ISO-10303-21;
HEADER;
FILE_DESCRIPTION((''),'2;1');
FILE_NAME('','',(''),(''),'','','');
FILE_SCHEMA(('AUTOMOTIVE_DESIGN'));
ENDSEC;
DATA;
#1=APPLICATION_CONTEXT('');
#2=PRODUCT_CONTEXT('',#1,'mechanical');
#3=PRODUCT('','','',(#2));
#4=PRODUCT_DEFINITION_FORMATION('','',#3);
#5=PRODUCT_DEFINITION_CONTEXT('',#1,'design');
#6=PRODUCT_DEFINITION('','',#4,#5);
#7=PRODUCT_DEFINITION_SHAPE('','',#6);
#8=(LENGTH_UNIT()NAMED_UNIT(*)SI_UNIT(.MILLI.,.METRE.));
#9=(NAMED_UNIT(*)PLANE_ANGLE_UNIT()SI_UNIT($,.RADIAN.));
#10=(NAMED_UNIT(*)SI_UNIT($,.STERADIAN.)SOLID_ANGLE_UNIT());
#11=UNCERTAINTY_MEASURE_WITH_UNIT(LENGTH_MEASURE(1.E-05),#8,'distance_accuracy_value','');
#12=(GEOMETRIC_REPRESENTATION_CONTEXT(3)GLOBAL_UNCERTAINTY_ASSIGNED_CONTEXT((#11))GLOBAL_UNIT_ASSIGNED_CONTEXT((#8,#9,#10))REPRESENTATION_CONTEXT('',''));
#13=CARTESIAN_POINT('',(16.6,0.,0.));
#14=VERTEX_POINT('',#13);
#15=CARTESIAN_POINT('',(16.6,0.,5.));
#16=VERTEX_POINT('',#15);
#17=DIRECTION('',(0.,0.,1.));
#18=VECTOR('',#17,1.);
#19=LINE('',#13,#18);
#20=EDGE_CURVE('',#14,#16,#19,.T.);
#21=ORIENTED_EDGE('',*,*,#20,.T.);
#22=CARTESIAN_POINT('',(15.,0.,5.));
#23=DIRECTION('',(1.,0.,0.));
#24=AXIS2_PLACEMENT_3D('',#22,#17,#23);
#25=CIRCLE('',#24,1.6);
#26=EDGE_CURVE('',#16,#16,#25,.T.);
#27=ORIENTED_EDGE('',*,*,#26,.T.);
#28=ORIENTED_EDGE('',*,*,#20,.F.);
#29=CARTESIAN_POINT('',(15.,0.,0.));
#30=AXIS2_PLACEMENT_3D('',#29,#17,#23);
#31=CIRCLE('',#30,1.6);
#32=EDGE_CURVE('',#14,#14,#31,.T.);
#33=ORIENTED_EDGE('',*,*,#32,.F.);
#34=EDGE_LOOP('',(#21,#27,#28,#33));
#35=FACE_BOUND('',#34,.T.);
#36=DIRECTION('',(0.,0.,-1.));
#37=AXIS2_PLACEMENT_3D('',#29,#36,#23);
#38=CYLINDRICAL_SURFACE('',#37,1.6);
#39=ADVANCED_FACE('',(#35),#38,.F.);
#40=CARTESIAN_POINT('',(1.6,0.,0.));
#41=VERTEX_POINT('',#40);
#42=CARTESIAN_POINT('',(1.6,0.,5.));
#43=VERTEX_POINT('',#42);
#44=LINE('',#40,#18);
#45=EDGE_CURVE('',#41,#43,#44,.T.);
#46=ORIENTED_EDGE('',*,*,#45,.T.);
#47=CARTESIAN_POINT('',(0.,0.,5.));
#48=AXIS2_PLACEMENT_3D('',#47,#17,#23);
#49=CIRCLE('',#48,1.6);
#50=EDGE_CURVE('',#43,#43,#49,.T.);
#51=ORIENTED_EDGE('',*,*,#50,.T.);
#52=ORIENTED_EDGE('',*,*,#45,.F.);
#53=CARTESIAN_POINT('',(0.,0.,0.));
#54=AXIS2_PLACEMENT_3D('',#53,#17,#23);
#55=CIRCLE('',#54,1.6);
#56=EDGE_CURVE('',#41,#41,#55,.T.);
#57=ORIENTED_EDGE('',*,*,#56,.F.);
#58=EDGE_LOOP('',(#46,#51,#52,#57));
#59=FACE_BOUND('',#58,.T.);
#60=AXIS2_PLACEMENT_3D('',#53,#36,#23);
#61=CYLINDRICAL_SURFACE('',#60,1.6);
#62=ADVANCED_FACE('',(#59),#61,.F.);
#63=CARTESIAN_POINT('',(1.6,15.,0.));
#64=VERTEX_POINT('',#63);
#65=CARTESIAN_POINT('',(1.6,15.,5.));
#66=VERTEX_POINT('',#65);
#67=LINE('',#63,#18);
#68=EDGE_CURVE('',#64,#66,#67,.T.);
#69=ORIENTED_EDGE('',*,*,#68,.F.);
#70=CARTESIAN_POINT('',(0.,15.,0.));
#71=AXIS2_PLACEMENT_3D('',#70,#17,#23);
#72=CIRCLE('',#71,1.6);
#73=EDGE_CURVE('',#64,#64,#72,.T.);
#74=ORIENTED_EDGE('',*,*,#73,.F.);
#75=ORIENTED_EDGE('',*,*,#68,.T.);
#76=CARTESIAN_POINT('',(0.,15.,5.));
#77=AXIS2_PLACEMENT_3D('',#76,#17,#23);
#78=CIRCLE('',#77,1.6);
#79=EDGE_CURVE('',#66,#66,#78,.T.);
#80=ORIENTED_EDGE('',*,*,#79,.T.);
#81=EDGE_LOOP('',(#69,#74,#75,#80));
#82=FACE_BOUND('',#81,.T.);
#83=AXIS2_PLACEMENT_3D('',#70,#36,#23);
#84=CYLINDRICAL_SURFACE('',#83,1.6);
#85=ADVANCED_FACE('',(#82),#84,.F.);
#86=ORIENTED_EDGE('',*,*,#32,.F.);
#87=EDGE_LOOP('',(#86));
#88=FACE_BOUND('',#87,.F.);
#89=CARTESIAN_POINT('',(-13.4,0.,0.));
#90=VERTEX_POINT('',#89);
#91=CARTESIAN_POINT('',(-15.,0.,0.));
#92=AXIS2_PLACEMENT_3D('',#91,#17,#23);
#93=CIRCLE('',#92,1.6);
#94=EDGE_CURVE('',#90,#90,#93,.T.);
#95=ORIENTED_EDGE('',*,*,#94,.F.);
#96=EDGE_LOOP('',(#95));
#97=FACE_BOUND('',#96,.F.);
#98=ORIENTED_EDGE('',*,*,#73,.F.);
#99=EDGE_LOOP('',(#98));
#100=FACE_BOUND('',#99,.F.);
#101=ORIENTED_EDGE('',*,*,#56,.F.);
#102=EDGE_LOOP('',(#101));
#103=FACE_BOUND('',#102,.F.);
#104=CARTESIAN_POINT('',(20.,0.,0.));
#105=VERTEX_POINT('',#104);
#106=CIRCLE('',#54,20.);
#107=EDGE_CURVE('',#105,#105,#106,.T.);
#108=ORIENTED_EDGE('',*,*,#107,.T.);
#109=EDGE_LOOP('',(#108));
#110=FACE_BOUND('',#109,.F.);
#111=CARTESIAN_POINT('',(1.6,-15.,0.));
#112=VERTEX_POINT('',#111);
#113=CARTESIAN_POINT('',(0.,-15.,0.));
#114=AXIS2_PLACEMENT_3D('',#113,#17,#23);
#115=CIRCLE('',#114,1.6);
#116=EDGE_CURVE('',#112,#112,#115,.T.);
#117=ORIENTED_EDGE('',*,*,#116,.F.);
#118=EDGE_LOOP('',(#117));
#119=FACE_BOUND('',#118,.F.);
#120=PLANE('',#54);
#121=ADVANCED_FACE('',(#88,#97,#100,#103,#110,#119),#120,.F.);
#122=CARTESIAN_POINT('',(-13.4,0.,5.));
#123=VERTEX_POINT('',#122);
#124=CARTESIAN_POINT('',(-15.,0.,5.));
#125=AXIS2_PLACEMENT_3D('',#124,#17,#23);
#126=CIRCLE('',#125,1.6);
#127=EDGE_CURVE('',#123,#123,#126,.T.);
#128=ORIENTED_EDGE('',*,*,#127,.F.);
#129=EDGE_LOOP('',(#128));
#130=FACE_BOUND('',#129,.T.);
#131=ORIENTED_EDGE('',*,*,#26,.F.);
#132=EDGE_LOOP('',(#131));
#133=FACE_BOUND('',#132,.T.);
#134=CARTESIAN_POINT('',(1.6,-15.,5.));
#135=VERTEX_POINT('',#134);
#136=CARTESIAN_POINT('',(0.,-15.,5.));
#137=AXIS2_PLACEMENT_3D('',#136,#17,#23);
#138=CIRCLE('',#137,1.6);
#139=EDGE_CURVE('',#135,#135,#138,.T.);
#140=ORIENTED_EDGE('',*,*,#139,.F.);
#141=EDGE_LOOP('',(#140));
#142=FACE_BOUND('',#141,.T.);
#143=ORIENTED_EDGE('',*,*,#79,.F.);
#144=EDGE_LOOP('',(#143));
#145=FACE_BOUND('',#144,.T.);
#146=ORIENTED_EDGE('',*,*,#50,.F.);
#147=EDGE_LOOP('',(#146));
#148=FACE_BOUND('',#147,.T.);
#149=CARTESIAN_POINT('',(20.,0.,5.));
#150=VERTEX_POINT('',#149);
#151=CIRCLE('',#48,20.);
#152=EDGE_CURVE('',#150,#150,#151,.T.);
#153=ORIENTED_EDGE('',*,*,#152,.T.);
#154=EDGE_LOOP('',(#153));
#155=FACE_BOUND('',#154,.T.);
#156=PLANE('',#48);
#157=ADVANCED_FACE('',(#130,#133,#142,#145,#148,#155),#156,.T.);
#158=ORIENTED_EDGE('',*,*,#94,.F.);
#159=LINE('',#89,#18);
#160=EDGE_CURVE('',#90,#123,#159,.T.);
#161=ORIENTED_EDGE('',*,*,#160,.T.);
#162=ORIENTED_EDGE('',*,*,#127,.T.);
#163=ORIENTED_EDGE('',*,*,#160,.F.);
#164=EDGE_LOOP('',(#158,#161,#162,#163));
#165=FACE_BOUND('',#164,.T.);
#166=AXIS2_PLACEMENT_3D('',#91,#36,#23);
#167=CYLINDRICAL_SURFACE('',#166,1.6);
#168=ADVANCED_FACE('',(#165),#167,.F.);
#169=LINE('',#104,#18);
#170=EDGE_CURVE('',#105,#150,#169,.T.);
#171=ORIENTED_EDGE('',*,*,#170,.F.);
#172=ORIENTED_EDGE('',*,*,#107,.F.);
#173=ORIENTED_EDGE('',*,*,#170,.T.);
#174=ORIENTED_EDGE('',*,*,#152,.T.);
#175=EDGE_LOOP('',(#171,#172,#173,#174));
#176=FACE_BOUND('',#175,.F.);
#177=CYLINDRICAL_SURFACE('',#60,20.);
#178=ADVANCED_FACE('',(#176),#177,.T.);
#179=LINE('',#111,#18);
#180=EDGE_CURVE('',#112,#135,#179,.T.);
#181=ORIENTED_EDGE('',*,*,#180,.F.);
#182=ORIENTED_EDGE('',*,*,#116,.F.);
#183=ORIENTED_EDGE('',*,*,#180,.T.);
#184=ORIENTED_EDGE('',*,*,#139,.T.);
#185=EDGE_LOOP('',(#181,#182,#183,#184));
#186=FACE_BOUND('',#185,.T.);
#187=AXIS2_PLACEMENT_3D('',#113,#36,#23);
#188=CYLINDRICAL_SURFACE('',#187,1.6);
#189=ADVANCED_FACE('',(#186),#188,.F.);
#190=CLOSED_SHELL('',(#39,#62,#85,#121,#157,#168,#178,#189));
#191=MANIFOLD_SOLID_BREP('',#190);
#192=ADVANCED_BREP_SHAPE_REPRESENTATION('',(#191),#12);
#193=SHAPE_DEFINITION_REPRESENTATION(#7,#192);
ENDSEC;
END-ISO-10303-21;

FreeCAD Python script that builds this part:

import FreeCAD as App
import Part
import Sketcher
Q = App.Units.Quantity

doc = App.newDocument("Part")
body = doc.addObject("PartDesign::Body", "Body")

# Sketch on XY plane
sketch1 = body.newObject("Sketcher::SketchObject", "Sketch")
sketch1.AttachmentSupport = (doc.getObject("XY_Plane"), [""])
sketch1.MapMode = "FlatFace"
sketch1.addGeometry(Part.Circle(App.Vector(0, 0, 0), App.Vector(0, 0, 1), 20), False)
sketch1.addGeometry(Part.Circle(App.Vector(0, -15, 0), App.Vector(0, 0, 1), 1.6), False)
sketch1.addGeometry(Part.Circle(App.Vector(-15, 0, 0), App.Vector(0, 0, 1), 1.6), False)
sketch1.addGeometry(Part.Circle(App.Vector(0, 0, 0), App.Vector(0, 0, 1), 1.6), False)
sketch1.addGeometry(Part.Circle(App.Vector(15, 0, 0), App.Vector(0, 0, 1), 1.6), False)
sketch1.addGeometry(Part.Circle(App.Vector(0, 15, 0), App.Vector(0, 0, 1), 1.6), False)
sketch1.addConstraint(Sketcher.Constraint("Coincident", 0, 3, -1, 1))
sketch1.addConstraint(Sketcher.Constraint("Coincident", 3, 3, -1, 1))
sketch1.addConstraint(Sketcher.Constraint("Equal", 1, 2))
sketch1.addConstraint(Sketcher.Constraint("Equal", 2, 3))
sketch1.addConstraint(Sketcher.Constraint("Equal", 3, 4))
sketch1.addConstraint(Sketcher.Constraint("Equal", 4, 5))
sketch1.addConstraint(Sketcher.Constraint("Symmetric", 2, 3, 4, 3, -1, 1))
sketch1.addConstraint(Sketcher.Constraint("Symmetric", 1, 3, 5, 3, -1, 1))
sketch1.addConstraint(Sketcher.Constraint("PointOnObject", 1, 3, -2))
sketch1.addConstraint(Sketcher.Constraint("PointOnObject", 2, 3, -1))
sketch1.addConstraint(Sketcher.Constraint("Diameter", 0, Q("40 mm")))
sketch1.addConstraint(Sketcher.Constraint("Diameter", 1, Q("3.2 mm")))
sketch1.addConstraint(Sketcher.Constraint("DistanceX", 2, 3, 4, 3, Q("30 mm")))
sketch1.addConstraint(Sketcher.Constraint("DistanceY", 1, 3, 5, 3, Q("30 mm")))
pad1 = body.newObject("PartDesign::Pad", "Pad")
pad1.Profile = sketch1
pad1.Length = 5

doc.recompute()
